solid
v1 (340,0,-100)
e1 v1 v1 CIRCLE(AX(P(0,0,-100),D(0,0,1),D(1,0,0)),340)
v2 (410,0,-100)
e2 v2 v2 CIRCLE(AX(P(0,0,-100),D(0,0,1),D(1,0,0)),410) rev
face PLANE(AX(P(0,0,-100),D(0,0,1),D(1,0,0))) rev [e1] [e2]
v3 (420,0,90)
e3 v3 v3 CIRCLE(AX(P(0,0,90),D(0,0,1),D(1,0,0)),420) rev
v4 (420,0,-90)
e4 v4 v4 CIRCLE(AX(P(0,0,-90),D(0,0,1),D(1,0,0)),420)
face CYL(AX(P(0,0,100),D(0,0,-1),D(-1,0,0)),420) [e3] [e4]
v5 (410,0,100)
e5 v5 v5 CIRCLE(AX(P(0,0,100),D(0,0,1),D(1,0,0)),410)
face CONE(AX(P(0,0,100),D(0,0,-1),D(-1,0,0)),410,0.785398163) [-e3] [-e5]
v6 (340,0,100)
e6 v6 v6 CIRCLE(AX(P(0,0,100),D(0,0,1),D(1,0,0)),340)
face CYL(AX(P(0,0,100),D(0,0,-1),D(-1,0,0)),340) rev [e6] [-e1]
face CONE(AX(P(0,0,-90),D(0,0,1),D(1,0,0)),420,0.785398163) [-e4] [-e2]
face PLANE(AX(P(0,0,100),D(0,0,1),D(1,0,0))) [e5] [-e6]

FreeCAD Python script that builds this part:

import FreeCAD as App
import Part
import Sketcher

V = App.Vector
Q = App.Units.Quantity


def edges_at(feature, points):
    """Names of the edges that pass closest to the given points."""
    edges = feature.Shape.Edges
    near = lambda p: min(range(len(edges)), key=lambda i: edges[i].distToShape(Part.Vertex(*p))[0])
    return sorted({f"Edge{near(p) + 1}" for p in points})

doc = App.newDocument("Part")
body = doc.addObject("PartDesign::Body", "Body")

# Sketch on XY plane
sketch1 = body.newObject("Sketcher::SketchObject", "Sketch")
sketch1.AttachmentSupport = (doc.getObject("XY_Plane"), [""])
sketch1.MapMode = "FlatFace"
sketch1.addGeometry([
    Part.Circle(V(0, 0, 0), V(0, 0, 1), 420),
    Part.Circle(V(0, 0, 0), V(0, 0, 1), 340),
], False)
sketch1.addConstraint([
    Sketcher.Constraint("Coincident", 0, 3, -1, 1),
    Sketcher.Constraint("Coincident", 1, 3, -1, 1),
    Sketcher.Constraint("Diameter", 0, Q("840 mm")),
    Sketcher.Constraint("Diameter", 1, Q("680 mm")),
])
pad1 = body.newObject("PartDesign::Pad", "Pad")
pad1.Profile = sketch1
pad1.Length = 200
pad1.Midplane = True
doc.recompute()

chamfer = body.newObject("PartDesign::Chamfer", "Chamfer")
chamfer.Base = (pad1, edges_at(pad1, [(-420, 0, -100), (-420, 0, 100)]))
chamfer.Size = 10

doc.recompute()
